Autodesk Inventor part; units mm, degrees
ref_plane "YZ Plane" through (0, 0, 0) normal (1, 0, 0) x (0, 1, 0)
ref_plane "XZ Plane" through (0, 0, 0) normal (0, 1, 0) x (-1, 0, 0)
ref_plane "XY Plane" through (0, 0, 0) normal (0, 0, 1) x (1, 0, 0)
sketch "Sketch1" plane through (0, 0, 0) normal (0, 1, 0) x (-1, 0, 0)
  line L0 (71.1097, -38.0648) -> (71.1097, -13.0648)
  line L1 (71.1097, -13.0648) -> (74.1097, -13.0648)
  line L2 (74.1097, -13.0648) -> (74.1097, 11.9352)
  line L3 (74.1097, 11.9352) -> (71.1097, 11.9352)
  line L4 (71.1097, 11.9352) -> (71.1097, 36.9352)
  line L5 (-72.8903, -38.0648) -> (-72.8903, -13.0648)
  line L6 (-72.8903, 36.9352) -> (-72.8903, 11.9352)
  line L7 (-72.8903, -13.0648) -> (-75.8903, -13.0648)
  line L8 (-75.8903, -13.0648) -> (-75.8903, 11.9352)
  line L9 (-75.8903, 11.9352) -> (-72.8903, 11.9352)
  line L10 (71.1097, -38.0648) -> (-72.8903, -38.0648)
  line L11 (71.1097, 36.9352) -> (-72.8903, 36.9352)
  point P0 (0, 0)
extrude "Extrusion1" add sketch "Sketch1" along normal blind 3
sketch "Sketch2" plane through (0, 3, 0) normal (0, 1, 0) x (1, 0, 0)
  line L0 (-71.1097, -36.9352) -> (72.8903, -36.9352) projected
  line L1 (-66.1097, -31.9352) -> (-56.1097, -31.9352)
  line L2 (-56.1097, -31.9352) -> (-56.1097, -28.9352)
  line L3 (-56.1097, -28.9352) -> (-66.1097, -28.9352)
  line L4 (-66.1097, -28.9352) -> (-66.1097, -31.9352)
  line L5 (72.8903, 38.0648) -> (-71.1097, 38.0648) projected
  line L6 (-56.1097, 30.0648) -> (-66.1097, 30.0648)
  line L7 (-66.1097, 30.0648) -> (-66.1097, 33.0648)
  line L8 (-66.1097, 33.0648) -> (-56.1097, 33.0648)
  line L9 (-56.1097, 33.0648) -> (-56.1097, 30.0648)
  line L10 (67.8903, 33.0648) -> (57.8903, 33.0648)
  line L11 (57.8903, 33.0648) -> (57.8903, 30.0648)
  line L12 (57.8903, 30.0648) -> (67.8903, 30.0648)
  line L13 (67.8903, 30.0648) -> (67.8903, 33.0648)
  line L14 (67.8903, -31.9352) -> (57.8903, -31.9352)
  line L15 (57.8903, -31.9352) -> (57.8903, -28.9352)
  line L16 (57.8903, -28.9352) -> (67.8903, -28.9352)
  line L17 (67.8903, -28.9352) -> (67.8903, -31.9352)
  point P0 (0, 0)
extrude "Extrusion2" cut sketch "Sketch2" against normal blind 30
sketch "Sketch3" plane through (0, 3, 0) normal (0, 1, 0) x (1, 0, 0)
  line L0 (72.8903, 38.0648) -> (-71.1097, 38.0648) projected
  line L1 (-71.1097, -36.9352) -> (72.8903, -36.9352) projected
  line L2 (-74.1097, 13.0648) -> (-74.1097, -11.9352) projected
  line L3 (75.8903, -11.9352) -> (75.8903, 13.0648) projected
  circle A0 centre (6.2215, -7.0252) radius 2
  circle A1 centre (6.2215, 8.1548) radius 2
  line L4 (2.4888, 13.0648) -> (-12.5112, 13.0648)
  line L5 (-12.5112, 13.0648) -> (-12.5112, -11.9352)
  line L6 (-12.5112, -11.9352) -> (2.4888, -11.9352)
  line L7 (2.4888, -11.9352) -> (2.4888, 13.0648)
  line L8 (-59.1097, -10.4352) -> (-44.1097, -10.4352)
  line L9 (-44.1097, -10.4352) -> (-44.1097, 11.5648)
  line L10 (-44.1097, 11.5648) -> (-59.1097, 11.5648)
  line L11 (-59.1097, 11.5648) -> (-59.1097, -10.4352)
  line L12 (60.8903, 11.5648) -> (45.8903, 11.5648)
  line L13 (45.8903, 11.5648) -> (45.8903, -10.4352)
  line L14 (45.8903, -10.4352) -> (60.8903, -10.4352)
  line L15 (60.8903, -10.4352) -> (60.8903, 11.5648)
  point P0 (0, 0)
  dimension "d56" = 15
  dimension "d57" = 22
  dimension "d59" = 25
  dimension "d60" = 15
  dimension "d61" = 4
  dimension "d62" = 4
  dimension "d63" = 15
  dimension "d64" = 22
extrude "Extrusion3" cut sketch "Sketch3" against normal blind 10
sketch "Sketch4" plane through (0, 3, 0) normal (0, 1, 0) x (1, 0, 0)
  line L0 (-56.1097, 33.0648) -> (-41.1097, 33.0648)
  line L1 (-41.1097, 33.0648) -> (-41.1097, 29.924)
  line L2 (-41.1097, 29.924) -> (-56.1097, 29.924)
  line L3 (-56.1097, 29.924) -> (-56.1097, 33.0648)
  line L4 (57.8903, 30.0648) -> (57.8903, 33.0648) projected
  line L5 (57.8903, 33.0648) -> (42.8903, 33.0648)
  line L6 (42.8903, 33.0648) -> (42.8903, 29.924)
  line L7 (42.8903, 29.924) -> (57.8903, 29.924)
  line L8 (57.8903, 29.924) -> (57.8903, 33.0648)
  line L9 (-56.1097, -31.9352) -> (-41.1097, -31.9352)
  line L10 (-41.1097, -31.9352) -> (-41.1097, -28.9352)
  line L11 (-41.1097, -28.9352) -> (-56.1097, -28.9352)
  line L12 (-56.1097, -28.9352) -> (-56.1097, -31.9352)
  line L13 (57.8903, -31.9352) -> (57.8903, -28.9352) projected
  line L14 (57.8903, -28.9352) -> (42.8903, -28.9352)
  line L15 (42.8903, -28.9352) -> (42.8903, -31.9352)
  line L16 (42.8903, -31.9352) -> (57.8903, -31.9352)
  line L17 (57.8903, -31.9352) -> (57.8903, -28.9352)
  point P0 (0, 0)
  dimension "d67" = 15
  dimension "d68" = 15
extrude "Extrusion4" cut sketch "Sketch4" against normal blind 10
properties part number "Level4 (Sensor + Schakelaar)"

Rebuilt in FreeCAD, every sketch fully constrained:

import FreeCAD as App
import Part
import Sketcher
Q = App.Units.Quantity

doc = App.newDocument("Part")
params = doc.addObject("Spreadsheet::Sheet", "Params")
for row, (alias, value) in enumerate([
    ("sketch1_width", "144 mm"),
    ("sketch1_width2", "3 mm"),
    ("sketch1_height", "25 mm"),
    ("pad1_length", "3 mm"),
    ("sketch2_width", "10 mm"),
    ("sketch2_height", "3 mm"),
    ("pocket1_length", "30 mm"),
    ("sketch3_diameter", "4 mm"),
    ("sketch3_width", "15 mm"),
    ("sketch3_height", "25 mm"),
    ("sketch3_height2", "22 mm"),
    ("pocket2_length", "10 mm"),
    ("sketch4_width", "15 mm"),
    ("sketch4_height", "3 mm"),
    ("pocket3_length", "10 mm"),
], start=1):
    params.set(f"A{row}", alias)
    params.set(f"B{row}", "=" + value)
    params.setAlias(f"B{row}", alias)

body = doc.addObject("PartDesign::Body", "Body")

# Sketch on XZ plane
sketch1 = doc.addObject("Sketcher::SketchObject", "Sketch")
body.addObject(sketch1)
sketch1.AttachmentSupport = (doc.XZ_Plane, [""])
sketch1.MapMode = "FlatFace"
sketch1.addGeometry(Part.LineSegment(App.Vector(72.9, -38.1, 0), App.Vector(-71.1, -38.1, 0)), False)
sketch1.addGeometry(Part.LineSegment(App.Vector(-71.1, -38.1, 0), App.Vector(-71.1, -13.1, 0)), False)
sketch1.addGeometry(Part.LineSegment(App.Vector(-71.1, -13.1, 0), App.Vector(-74.1, -13.1, 0)), False)
sketch1.addGeometry(Part.LineSegment(App.Vector(-74.1, -13.1, 0), App.Vector(-74.1, 11.9, 0)), False)
sketch1.addGeometry(Part.LineSegment(App.Vector(-74.1, 11.9, 0), App.Vector(-71.1, 11.9, 0)), False)
sketch1.addGeometry(Part.LineSegment(App.Vector(-71.1, 11.9, 0), App.Vector(-71.1, 36.9, 0)), False)
sketch1.addGeometry(Part.LineSegment(App.Vector(-71.1, 36.9, 0), App.Vector(72.9, 36.9, 0)), False)
sketch1.addGeometry(Part.LineSegment(App.Vector(72.9, 36.9, 0), App.Vector(72.9, 11.9, 0)), False)
sketch1.addGeometry(Part.LineSegment(App.Vector(72.9, 11.9, 0), App.Vector(75.9, 11.9, 0)), False)
sketch1.addGeometry(Part.LineSegment(App.Vector(75.9, 11.9, 0), App.Vector(75.9, -13.1, 0)), False)
sketch1.addGeometry(Part.LineSegment(App.Vector(75.9, -13.1, 0), App.Vector(72.9, -13.1, 0)), False)
sketch1.addGeometry(Part.LineSegment(App.Vector(72.9, -13.1, 0), App.Vector(72.9, -38.1, 0)), False)
sketch1.addConstraint(Sketcher.Constraint("Coincident", 0, 2, 1, 1))
sketch1.addConstraint(Sketcher.Constraint("Coincident", 1, 2, 2, 1))
sketch1.addConstraint(Sketcher.Constraint("Coincident", 2, 2, 3, 1))
sketch1.addConstraint(Sketcher.Constraint("Coincident", 3, 2, 4, 1))
sketch1.addConstraint(Sketcher.Constraint("Coincident", 4, 2, 5, 1))
sketch1.addConstraint(Sketcher.Constraint("Coincident", 5, 2, 6, 1))
sketch1.addConstraint(Sketcher.Constraint("Coincident", 6, 2, 7, 1))
sketch1.addConstraint(Sketcher.Constraint("Coincident", 7, 2, 8, 1))
sketch1.addConstraint(Sketcher.Constraint("Coincident", 8, 2, 9, 1))
sketch1.addConstraint(Sketcher.Constraint("Coincident", 9, 2, 10, 1))
sketch1.addConstraint(Sketcher.Constraint("Coincident", 10, 2, 11, 1))
sketch1.addConstraint(Sketcher.Constraint("Coincident", 11, 2, 0, 1))
sketch1.addConstraint(Sketcher.Constraint("Horizontal", 0))
sketch1.addConstraint(Sketcher.Constraint("Vertical", 1))
sketch1.addConstraint(Sketcher.Constraint("Horizontal", 2))
sketch1.addConstraint(Sketcher.Constraint("Vertical", 3))
sketch1.addConstraint(Sketcher.Constraint("Horizontal", 4))
sketch1.addConstraint(Sketcher.Constraint("Vertical", 5))
sketch1.addConstraint(Sketcher.Constraint("Horizontal", 6))
sketch1.addConstraint(Sketcher.Constraint("Vertical", 7))
sketch1.addConstraint(Sketcher.Constraint("Horizontal", 8))
sketch1.addConstraint(Sketcher.Constraint("Vertical", 9))
sketch1.addConstraint(Sketcher.Constraint("Horizontal", 10))
sketch1.addConstraint(Sketcher.Constraint("Vertical", 11))
sketch1.addConstraint(Sketcher.Constraint("Horizontal", 4, 2, 7, 2))
sketch1.addConstraint(Sketcher.Constraint("Horizontal", 2, 2, 9, 2))
sketch1.addConstraint(Sketcher.Constraint("Vertical", 1, 2, 4, 2))
sketch1.addConstraint(Sketcher.Constraint("Vertical", 7, 2, 10, 2))
sketch1.addConstraint(Sketcher.Constraint("Equal", 4, 8))
sketch1.addConstraint(Sketcher.Constraint("Equal", 1, 3))
sketch1.addConstraint(Sketcher.Constraint("Equal", 3, 5))
sketch1.addConstraint(Sketcher.Constraint("DistanceX", 0, 2, 0, 1, Q("144 mm")))
sketch1.addConstraint(Sketcher.Constraint("DistanceX", 2, 2, 2, 1, Q("3 mm")))
sketch1.addConstraint(Sketcher.Constraint("DistanceY", 1, 1, 1, 2, Q("25 mm")))
sketch1.addConstraint(Sketcher.Constraint("DistanceX", 0, 2, -1, 1, Q("71.1097 mm")))
sketch1.addConstraint(Sketcher.Constraint("DistanceY", 0, 2, -1, 1, Q("38.0648 mm")))
sketch1.setExpression("Constraints[31]", "Params.sketch1_width")
sketch1.setExpression("Constraints[32]", "Params.sketch1_width2")
sketch1.setExpression("Constraints[33]", "Params.sketch1_height")
pad1 = doc.addObject("PartDesign::Pad", "Pad")
body.addObject(pad1)
pad1.Profile = sketch1
pad1.setExpression("Length", "Params.pad1_length")
pad1.Reversed = True

# Sketch on XZ plane
sketch2 = doc.addObject("Sketcher::SketchObject", "Sketch001")
body.addObject(sketch2)
sketch2.AttachmentSupport = (doc.XZ_Plane, [""])
sketch2.MapMode = "FlatFace"
sketch2.AttachmentOffset = App.Placement(App.Vector(0, 0, -3), App.Rotation())
sketch2.addGeometry(Part.LineSegment(App.Vector(-66.1, 28.9, 0), App.Vector(-66.1, 31.9, 0)), False)
sketch2.addGeometry(Part.LineSegment(App.Vector(-66.1, 31.9, 0), App.Vector(-56.1, 31.9, 0)), False)
sketch2.addGeometry(Part.LineSegment(App.Vector(-56.1, 31.9, 0), App.Vector(-56.1, 28.9, 0)), False)
sketch2.addGeometry(Part.LineSegment(App.Vector(-56.1, 28.9, 0), App.Vector(-66.1, 28.9, 0)), False)
sketch2.addGeometry(Part.LineSegment(App.Vector(-66.1, -30.1, 0), App.Vector(-56.1, -30.1, 0)), False)
sketch2.addGeometry(Part.LineSegment(App.Vector(-56.1, -30.1, 0), App.Vector(-56.1, -33.1, 0)), False)
sketch2.addGeometry(Part.LineSegment(App.Vector(-56.1, -33.1, 0), App.Vector(-66.1, -33.1, 0)), False)
sketch2.addGeometry(Part.LineSegment(App.Vector(-66.1, -33.1, 0), App.Vector(-66.1, -30.1, 0)), False)
sketch2.addGeometry(Part.LineSegment(App.Vector(67.9, -30.1, 0), App.Vector(67.9, -33.1, 0)), False)
sketch2.addGeometry(Part.LineSegment(App.Vector(67.9, -33.1, 0), App.Vector(57.9, -33.1, 0)), False)
sketch2.addGeometry(Part.LineSegment(App.Vector(57.9, -33.1, 0), App.Vector(57.9, -30.1, 0)), False)
sketch2.addGeometry(Part.LineSegment(App.Vector(57.9, -30.1, 0), App.Vector(67.9, -30.1, 0)), False)
sketch2.addGeometry(Part.LineSegment(App.Vector(57.9, 31.9, 0), App.Vector(67.9, 31.9, 0)), False)
sketch2.addGeometry(Part.LineSegment(App.Vector(67.9, 31.9, 0), App.Vector(67.9, 28.9, 0)), False)
sketch2.addGeometry(Part.LineSegment(App.Vector(67.9, 28.9, 0), App.Vector(57.9, 28.9, 0)), False)
sketch2.addGeometry(Part.LineSegment(App.Vector(57.9, 28.9, 0), App.Vector(57.9, 31.9, 0)), False)
sketch2.addConstraint(Sketcher.Constraint("Coincident", 0, 2, 1, 1))
sketch2.addConstraint(Sketcher.Constraint("Coincident", 1, 2, 2, 1))
sketch2.addConstraint(Sketcher.Constraint("Coincident", 2, 2, 3, 1))
sketch2.addConstraint(Sketcher.Constraint("Coincident", 3, 2, 0, 1))
sketch2.addConstraint(Sketcher.Constraint("Coincident", 4, 2, 5, 1))
sketch2.addConstraint(Sketcher.Constraint("Coincident", 5, 2, 6, 1))
sketch2.addConstraint(Sketcher.Constraint("Coincident", 6, 2, 7, 1))
sketch2.addConstraint(Sketcher.Constraint("Coincident", 7, 2, 4, 1))
sketch2.addConstraint(Sketcher.Constraint("Coincident", 8, 2, 9, 1))
sketch2.addConstraint(Sketcher.Constraint("Coincident", 9, 2, 10, 1))
sketch2.addConstraint(Sketcher.Constraint("Coincident", 10, 2, 11, 1))
sketch2.addConstraint(Sketcher.Constraint("Coincident", 11, 2, 8, 1))
sketch2.addConstraint(Sketcher.Constraint("Coincident", 12, 2, 13, 1))
sketch2.addConstraint(Sketcher.Constraint("Coincident", 13, 2, 14, 1))
sketch2.addConstraint(Sketcher.Constraint("Coincident", 14, 2, 15, 1))
sketch2.addConstraint(Sketcher.Constraint("Coincident", 15, 2, 12, 1))
sketch2.addConstraint(Sketcher.Constraint("Vertical", 0))
sketch2.addConstraint(Sketcher.Constraint("Horizontal", 1))
sketch2.addConstraint(Sketcher.Constraint("Vertical", 2))
sketch2.addConstraint(Sketcher.Constraint("Horizontal", 3))
sketch2.addConstraint(Sketcher.Constraint("Horizontal", 4))
sketch2.addConstraint(Sketcher.Constraint("Vertical", 5))
sketch2.addConstraint(Sketcher.Constraint("Horizontal", 6))
sketch2.addConstraint(Sketcher.Constraint("Vertical", 7))
sketch2.addConstraint(Sketcher.Constraint("Vertical", 8))
sketch2.addConstraint(Sketcher.Constraint("Horizontal", 9))
sketch2.addConstraint(Sketcher.Constraint("Vertical", 10))
sketch2.addConstraint(Sketcher.Constraint("Horizontal", 11))
sketch2.addConstraint(Sketcher.Constraint("Horizontal", 12))
sketch2.addConstraint(Sketcher.Constraint("Vertical", 13))
sketch2.addConstraint(Sketcher.Constraint("Horizontal", 14))
sketch2.addConstraint(Sketcher.Constraint("Vertical", 15))
sketch2.addConstraint(Sketcher.Constraint("Horizontal", 6, 2, 8, 2))
sketch2.addConstraint(Sketcher.Constraint("Horizontal", 7, 2, 10, 2))
sketch2.addConstraint(Sketcher.Constraint("Horizontal", 1, 2, 12, 2))
sketch2.addConstraint(Sketcher.Constraint("Horizontal", 3, 2, 13, 2))
sketch2.addConstraint(Sketcher.Constraint("Vertical", 2, 2, 4, 2))
sketch2.addConstraint(Sketcher.Constraint("Vertical", 3, 2, 6, 2))
sketch2.addConstraint(Sketcher.Constraint("Vertical", 11, 2, 12, 2))
sketch2.addConstraint(Sketcher.Constraint("Vertical", 10, 2, 14, 2))
sketch2.addConstraint(Sketcher.Constraint("Equal", 6, 9))
sketch2.addConstraint(Sketcher.Constraint("Equal", 2, 5))
sketch2.addConstraint(Sketcher.Constraint("DistanceX", 1, 1, 1, 2, Q("10 mm")))
sketch2.addConstraint(Sketcher.Constraint("DistanceY", 0, 1, 0, 2, Q("3 mm")))
sketch2.addConstraint(Sketcher.Constraint("DistanceY", 4, 2, 2, 2, Q("59 mm")))
sketch2.addConstraint(Sketcher.Constraint("DistanceX", 5, 2, 8, 2, Q("124 mm")))
sketch2.addConstraint(Sketcher.Constraint("DistanceX", 0, 2, -1, 1, Q("66.1097 mm")))
sketch2.addConstraint(Sketcher.Constraint("DistanceY", -1, 1, 0, 2, Q("31.9352 mm")))
sketch2.setExpression("Constraints[42]", "Params.sketch2_width")
sketch2.setExpression("Constraints[43]", "Params.sketch2_height")
pocket1 = doc.addObject("PartDesign::Pocket", "Pocket")
body.addObject(pocket1)
pocket1.Profile = sketch2
pocket1.setExpression("Length", "Params.pocket1_length")
pocket1.Reversed = True

# Sketch on XZ plane
sketch3 = doc.addObject("Sketcher::SketchObject", "Sketch002")
body.addObject(sketch3)
sketch3.AttachmentSupport = (doc.XZ_Plane, [""])
sketch3.MapMode = "FlatFace"
sketch3.AttachmentOffset = App.Placement(App.Vector(0, 0, -3), App.Rotation())
sketch3.addGeometry(Part.Circle(App.Vector(6.2, 7, 0), App.Vector(0, 0, 1), 2), False)
sketch3.addGeometry(Part.Circle(App.Vector(6.2, -8.2, 0), App.Vector(0, 0, 1), 2), False)
sketch3.addGeometry(Part.LineSegment(App.Vector(2.5, 11.9, 0), App.Vector(2.5, -13.1, 0)), False)
sketch3.addGeometry(Part.LineSegment(App.Vector(2.5, -13.1, 0), App.Vector(-12.5, -13.1, 0)), False)
sketch3.addGeometry(Part.LineSegment(App.Vector(-12.5, -13.1, 0), App.Vector(-12.5, 11.9, 0)), False)
sketch3.addGeometry(Part.LineSegment(App.Vector(-12.5, 11.9, 0), App.Vector(2.5, 11.9, 0)), False)
sketch3.addGeometry(Part.LineSegment(App.Vector(-59.1, -11.6, 0), App.Vector(-59.1, 10.4, 0)), False)
sketch3.addGeometry(Part.LineSegment(App.Vector(-59.1, 10.4, 0), App.Vector(-44.1, 10.4, 0)), False)
sketch3.addGeometry(Part.LineSegment(App.Vector(-44.1, 10.4, 0), App.Vector(-44.1, -11.6, 0)), False)
sketch3.addGeometry(Part.LineSegment(App.Vector(-44.1, -11.6, 0), App.Vector(-59.1, -11.6, 0)), False)
sketch3.addGeometry(Part.LineSegment(App.Vector(60.9, 10.4, 0), App.Vector(60.9, -11.6, 0)), False)
sketch3.addGeometry(Part.LineSegment(App.Vector(60.9, -11.6, 0), App.Vector(45.9, -11.6, 0)), False)
sketch3.addGeometry(Part.LineSegment(App.Vector(45.9, -11.6, 0), App.Vector(45.9, 10.4, 0)), False)
sketch3.addGeometry(Part.LineSegment(App.Vector(45.9, 10.4, 0), App.Vector(60.9, 10.4, 0)), False)
sketch3.addConstraint(Sketcher.Constraint("Coincident", 2, 2, 3, 1))
sketch3.addConstraint(Sketcher.Constraint("Coincident", 3, 2, 4, 1))
sketch3.addConstraint(Sketcher.Constraint("Coincident", 4, 2, 5, 1))
sketch3.addConstraint(Sketcher.Constraint("Coincident", 5, 2, 2, 1))
sketch3.addConstraint(Sketcher.Constraint("Coincident", 6, 2, 7, 1))
sketch3.addConstraint(Sketcher.Constraint("Coincident", 7, 2, 8, 1))
sketch3.addConstraint(Sketcher.Constraint("Coincident", 8, 2, 9, 1))
sketch3.addConstraint(Sketcher.Constraint("Coincident", 9, 2, 6, 1))
sketch3.addConstraint(Sketcher.Constraint("Coincident", 10, 2, 11, 1))
sketch3.addConstraint(Sketcher.Constraint("Coincident", 11, 2, 12, 1))
sketch3.addConstraint(Sketcher.Constraint("Coincident", 12, 2, 13, 1))
sketch3.addConstraint(Sketcher.Constraint("Coincident", 13, 2, 10, 1))
sketch3.addConstraint(Sketcher.Constraint("Vertical", 2))
sketch3.addConstraint(Sketcher.Constraint("Horizontal", 3))
sketch3.addConstraint(Sketcher.Constraint("Vertical", 4))
sketch3.addConstraint(Sketcher.Constraint("Horizontal", 5))
sketch3.addConstraint(Sketcher.Constraint("Vertical", 6))
sketch3.addConstraint(Sketcher.Constraint("Horizontal", 7))
sketch3.addConstraint(Sketcher.Constraint("Vertical", 8))
sketch3.addConstraint(Sketcher.Constraint("Horizontal", 9))
sketch3.addConstraint(Sketcher.Constraint("Vertical", 10))
sketch3.addConstraint(Sketcher.Constraint("Horizontal", 11))
sketch3.addConstraint(Sketcher.Constraint("Vertical", 12))
sketch3.addConstraint(Sketcher.Constraint("Horizontal", 13))
sketch3.addConstraint(Sketcher.Constraint("Equal", 0, 1))
sketch3.addConstraint(Sketcher.Constraint("Horizontal", 9, 2, 10, 2))
sketch3.addConstraint(Sketcher.Constraint("Horizontal", 7, 2, 12, 2))
sketch3.addConstraint(Sketcher.Constraint("Vertical", 0, 3, 1, 3))
sketch3.addConstraint(Sketcher.Constraint("Equal", 5, 7))
sketch3.addConstraint(Sketcher.Constraint("Equal", 9, 11))
sketch3.addConstraint(Sketcher.Constraint("Diameter", 0, Q("4 mm")))
sketch3.addConstraint(Sketcher.Constraint("DistanceX", 3, 2, 3, 1, Q("15 mm")))
sketch3.addConstraint(Sketcher.Constraint("DistanceY", 2, 2, 2, 1, Q("25 mm")))
sketch3.addConstraint(Sketcher.Constraint("DistanceY", 6, 1, 6, 2, Q("22 mm")))
sketch3.addConstraint(Sketcher.Constraint("DistanceY", 6, 2, 4, 2, Q("1.5 mm")))
sketch3.addConstraint(Sketcher.Constraint("DistanceY", 1, 3, 0, 3, Q("15.18 mm")))
sketch3.addConstraint(Sketcher.Constraint("DistanceY", 2, 2, 1, 3, Q("4.91 mm")))
sketch3.addConstraint(Sketcher.Constraint("DistanceX", -1, 1, 0, 3, Q("6.2215 mm")))
sketch3.addConstraint(Sketcher.Constraint("DistanceY", -1, 1, 0, 3, Q("7.0252 mm")))
sketch3.addConstraint(Sketcher.Constraint("DistanceX", -1, 1, 2, 2, Q("2.4888 mm")))
sketch3.addConstraint(Sketcher.Constraint("DistanceX", 6, 2, -1, 1, Q("59.1097 mm")))
sketch3.addConstraint(Sketcher.Constraint("DistanceX", -1, 1, 10, 2, Q("60.8903 mm")))
sketch3.setExpression("Constraints[30]", "Params.sketch3_diameter")
sketch3.setExpression("Constraints[31]", "Params.sketch3_width")
sketch3.setExpression("Constraints[32]", "Params.sketch3_height")
sketch3.setExpression("Constraints[33]", "Params.sketch3_height2")
pocket2 = doc.addObject("PartDesign::Pocket", "Pocket001")
body.addObject(pocket2)
pocket2.Profile = sketch3
pocket2.setExpression("Length", "Params.pocket2_length")
pocket2.Reversed = True

# Sketch on XZ plane
sketch4 = doc.addObject("Sketcher::SketchObject", "Sketch003")
body.addObject(sketch4)
sketch4.AttachmentSupport = (doc.XZ_Plane, [""])
sketch4.MapMode = "FlatFace"
sketch4.AttachmentOffset = App.Placement(App.Vector(0, 0, -3), App.Rotation())
sketch4.addGeometry(Part.LineSegment(App.Vector(-41.1, -33.1, 0), App.Vector(-56.1, -33.1, 0)), False)
sketch4.addGeometry(Part.LineSegment(App.Vector(-56.1, -33.1, 0), App.Vector(-56.1, -29.9, 0)), False)
sketch4.addGeometry(Part.LineSegment(App.Vector(-56.1, -29.9, 0), App.Vector(-41.1, -29.9, 0)), False)
sketch4.addGeometry(Part.LineSegment(App.Vector(-41.1, -29.9, 0), App.Vector(-41.1, -33.1, 0)), False)
sketch4.addGeometry(Part.LineSegment(App.Vector(57.9, -29.9, 0), App.Vector(57.9, -33.1, 0)), False)
sketch4.addGeometry(Part.LineSegment(App.Vector(57.9, -33.1, 0), App.Vector(42.9, -33.1, 0)), False)
sketch4.addGeometry(Part.LineSegment(App.Vector(42.9, -33.1, 0), App.Vector(42.9, -29.9, 0)), False)
sketch4.addGeometry(Part.LineSegment(App.Vector(42.9, -29.9, 0), App.Vector(57.9, -29.9, 0)), False)
sketch4.addGeometry(Part.LineSegment(App.Vector(-56.1, 28.9, 0), App.Vector(-56.1, 31.9, 0)), False)
sketch4.addGeometry(Part.LineSegment(App.Vector(-56.1, 31.9, 0), App.Vector(-41.1, 31.9, 0)), False)
sketch4.addGeometry(Part.LineSegment(App.Vector(-41.1, 31.9, 0), App.Vector(-41.1, 28.9, 0)), False)
sketch4.addGeometry(Part.LineSegment(App.Vector(-41.1, 28.9, 0), App.Vector(-56.1, 28.9, 0)), False)
sketch4.addGeometry(Part.LineSegment(App.Vector(42.9, 31.9, 0), App.Vector(57.9, 31.9, 0)), False)
sketch4.addGeometry(Part.LineSegment(App.Vector(57.9, 31.9, 0), App.Vector(57.9, 28.9, 0)), False)
sketch4.addGeometry(Part.LineSegment(App.Vector(57.9, 28.9, 0), App.Vector(42.9, 28.9, 0)), False)
sketch4.addGeometry(Part.LineSegment(App.Vector(42.9, 28.9, 0), App.Vector(42.9, 31.9, 0)), False)
sketch4.addConstraint(Sketcher.Constraint("Coincident", 0, 2, 1, 1))
sketch4.addConstraint(Sketcher.Constraint("Coincident", 1, 2, 2, 1))
sketch4.addConstraint(Sketcher.Constraint("Coincident", 2, 2, 3, 1))
sketch4.addConstraint(Sketcher.Constraint("Coincident", 3, 2, 0, 1))
sketch4.addConstraint(Sketcher.Constraint("Coincident", 4, 2, 5, 1))
sketch4.addConstraint(Sketcher.Constraint("Coincident", 5, 2, 6, 1))
sketch4.addConstraint(Sketcher.Constraint("Coincident", 6, 2, 7, 1))
sketch4.addConstraint(Sketcher.Constraint("Coincident", 7, 2, 4, 1))
sketch4.addConstraint(Sketcher.Constraint("Coincident", 8, 2, 9, 1))
sketch4.addConstraint(Sketcher.Constraint("Coincident", 9, 2, 10, 1))
sketch4.addConstraint(Sketcher.Constraint("Coincident", 10, 2, 11, 1))
sketch4.addConstraint(Sketcher.Constraint("Coincident", 11, 2, 8, 1))
sketch4.addConstraint(Sketcher.Constraint("Coincident", 12, 2, 13, 1))
sketch4.addConstraint(Sketcher.Constraint("Coincident", 13, 2, 14, 1))
sketch4.addConstraint(Sketcher.Constraint("Coincident", 14, 2, 15, 1))
sketch4.addConstraint(Sketcher.Constraint("Coincident", 15, 2, 12, 1))
sketch4.addConstraint(Sketcher.Constraint("Horizontal", 0))
sketch4.addConstraint(Sketcher.Constraint("Vertical", 1))
sketch4.addConstraint(Sketcher.Constraint("Horizontal", 2))
sketch4.addConstraint(Sketcher.Constraint("Vertical", 3))
sketch4.addConstraint(Sketcher.Constraint("Vertical", 4))
sketch4.addConstraint(Sketcher.Constraint("Horizontal", 5))
sketch4.addConstraint(Sketcher.Constraint("Vertical", 6))
sketch4.addConstraint(Sketcher.Constraint("Horizontal", 7))
sketch4.addConstraint(Sketcher.Constraint("Vertical", 8))
sketch4.addConstraint(Sketcher.Constraint("Horizontal", 9))
sketch4.addConstraint(Sketcher.Constraint("Vertical", 10))
sketch4.addConstraint(Sketcher.Constraint("Horizontal", 11))
sketch4.addConstraint(Sketcher.Constraint("Horizontal", 12))
sketch4.addConstraint(Sketcher.Constraint("Vertical", 13))
sketch4.addConstraint(Sketcher.Constraint("Horizontal", 14))
sketch4.addConstraint(Sketcher.Constraint("Vertical", 15))
sketch4.addConstraint(Sketcher.Constraint("Horizontal", 3, 2, 4, 2))
sketch4.addConstraint(Sketcher.Constraint("Horizontal", 2, 2, 6, 2))
sketch4.addConstraint(Sketcher.Constraint("Horizontal", 9, 2, 12, 2))
sketch4.addConstraint(Sketcher.Constraint("Horizontal", 11, 2, 13, 2))
sketch4.addConstraint(Sketcher.Constraint("Vertical", 1, 2, 8, 2))
sketch4.addConstraint(Sketcher.Constraint("Vertical", 3, 2, 9, 2))
sketch4.addConstraint(Sketcher.Constraint("Vertical", 7, 2, 12, 2))
sketch4.addConstraint(Sketcher.Constraint("Vertical", 6, 2, 14, 2))
sketch4.addConstraint(Sketcher.Constraint("Equal", 2, 5))
sketch4.addConstraint(Sketcher.Constraint("DistanceX", 0, 2, 0, 1, Q("15 mm")))
sketch4.addConstraint(Sketcher.Constraint("DistanceY", 8, 1, 8, 2, Q("3 mm")))
sketch4.addConstraint(Sketcher.Constraint("DistanceX", 3, 2, 4, 2, Q("99 mm")))
sketch4.addConstraint(Sketcher.Constraint("DistanceY", 0, 2, 8, 2, Q("65 mm")))
sketch4.addConstraint(Sketcher.Constraint("DistanceY", 1, 1, 1, 2, Q("3.1408 mm")))
sketch4.addConstraint(Sketcher.Constraint("DistanceY", 1, 2, -1, 1, Q("29.924 mm")))
sketch4.addConstraint(Sketcher.Constraint("DistanceX", 0, 2, -1, 1, Q("56.1097 mm")))
sketch4.setExpression("Constraints[41]", "Params.sketch4_width")
sketch4.setExpression("Constraints[42]", "Params.sketch4_height")
pocket3 = doc.addObject("PartDesign::Pocket", "Pocket002")
body.addObject(pocket3)
pocket3.Profile = sketch4
pocket3.setExpression("Length", "Params.pocket3_length")
pocket3.Reversed = True

doc.recompute()
